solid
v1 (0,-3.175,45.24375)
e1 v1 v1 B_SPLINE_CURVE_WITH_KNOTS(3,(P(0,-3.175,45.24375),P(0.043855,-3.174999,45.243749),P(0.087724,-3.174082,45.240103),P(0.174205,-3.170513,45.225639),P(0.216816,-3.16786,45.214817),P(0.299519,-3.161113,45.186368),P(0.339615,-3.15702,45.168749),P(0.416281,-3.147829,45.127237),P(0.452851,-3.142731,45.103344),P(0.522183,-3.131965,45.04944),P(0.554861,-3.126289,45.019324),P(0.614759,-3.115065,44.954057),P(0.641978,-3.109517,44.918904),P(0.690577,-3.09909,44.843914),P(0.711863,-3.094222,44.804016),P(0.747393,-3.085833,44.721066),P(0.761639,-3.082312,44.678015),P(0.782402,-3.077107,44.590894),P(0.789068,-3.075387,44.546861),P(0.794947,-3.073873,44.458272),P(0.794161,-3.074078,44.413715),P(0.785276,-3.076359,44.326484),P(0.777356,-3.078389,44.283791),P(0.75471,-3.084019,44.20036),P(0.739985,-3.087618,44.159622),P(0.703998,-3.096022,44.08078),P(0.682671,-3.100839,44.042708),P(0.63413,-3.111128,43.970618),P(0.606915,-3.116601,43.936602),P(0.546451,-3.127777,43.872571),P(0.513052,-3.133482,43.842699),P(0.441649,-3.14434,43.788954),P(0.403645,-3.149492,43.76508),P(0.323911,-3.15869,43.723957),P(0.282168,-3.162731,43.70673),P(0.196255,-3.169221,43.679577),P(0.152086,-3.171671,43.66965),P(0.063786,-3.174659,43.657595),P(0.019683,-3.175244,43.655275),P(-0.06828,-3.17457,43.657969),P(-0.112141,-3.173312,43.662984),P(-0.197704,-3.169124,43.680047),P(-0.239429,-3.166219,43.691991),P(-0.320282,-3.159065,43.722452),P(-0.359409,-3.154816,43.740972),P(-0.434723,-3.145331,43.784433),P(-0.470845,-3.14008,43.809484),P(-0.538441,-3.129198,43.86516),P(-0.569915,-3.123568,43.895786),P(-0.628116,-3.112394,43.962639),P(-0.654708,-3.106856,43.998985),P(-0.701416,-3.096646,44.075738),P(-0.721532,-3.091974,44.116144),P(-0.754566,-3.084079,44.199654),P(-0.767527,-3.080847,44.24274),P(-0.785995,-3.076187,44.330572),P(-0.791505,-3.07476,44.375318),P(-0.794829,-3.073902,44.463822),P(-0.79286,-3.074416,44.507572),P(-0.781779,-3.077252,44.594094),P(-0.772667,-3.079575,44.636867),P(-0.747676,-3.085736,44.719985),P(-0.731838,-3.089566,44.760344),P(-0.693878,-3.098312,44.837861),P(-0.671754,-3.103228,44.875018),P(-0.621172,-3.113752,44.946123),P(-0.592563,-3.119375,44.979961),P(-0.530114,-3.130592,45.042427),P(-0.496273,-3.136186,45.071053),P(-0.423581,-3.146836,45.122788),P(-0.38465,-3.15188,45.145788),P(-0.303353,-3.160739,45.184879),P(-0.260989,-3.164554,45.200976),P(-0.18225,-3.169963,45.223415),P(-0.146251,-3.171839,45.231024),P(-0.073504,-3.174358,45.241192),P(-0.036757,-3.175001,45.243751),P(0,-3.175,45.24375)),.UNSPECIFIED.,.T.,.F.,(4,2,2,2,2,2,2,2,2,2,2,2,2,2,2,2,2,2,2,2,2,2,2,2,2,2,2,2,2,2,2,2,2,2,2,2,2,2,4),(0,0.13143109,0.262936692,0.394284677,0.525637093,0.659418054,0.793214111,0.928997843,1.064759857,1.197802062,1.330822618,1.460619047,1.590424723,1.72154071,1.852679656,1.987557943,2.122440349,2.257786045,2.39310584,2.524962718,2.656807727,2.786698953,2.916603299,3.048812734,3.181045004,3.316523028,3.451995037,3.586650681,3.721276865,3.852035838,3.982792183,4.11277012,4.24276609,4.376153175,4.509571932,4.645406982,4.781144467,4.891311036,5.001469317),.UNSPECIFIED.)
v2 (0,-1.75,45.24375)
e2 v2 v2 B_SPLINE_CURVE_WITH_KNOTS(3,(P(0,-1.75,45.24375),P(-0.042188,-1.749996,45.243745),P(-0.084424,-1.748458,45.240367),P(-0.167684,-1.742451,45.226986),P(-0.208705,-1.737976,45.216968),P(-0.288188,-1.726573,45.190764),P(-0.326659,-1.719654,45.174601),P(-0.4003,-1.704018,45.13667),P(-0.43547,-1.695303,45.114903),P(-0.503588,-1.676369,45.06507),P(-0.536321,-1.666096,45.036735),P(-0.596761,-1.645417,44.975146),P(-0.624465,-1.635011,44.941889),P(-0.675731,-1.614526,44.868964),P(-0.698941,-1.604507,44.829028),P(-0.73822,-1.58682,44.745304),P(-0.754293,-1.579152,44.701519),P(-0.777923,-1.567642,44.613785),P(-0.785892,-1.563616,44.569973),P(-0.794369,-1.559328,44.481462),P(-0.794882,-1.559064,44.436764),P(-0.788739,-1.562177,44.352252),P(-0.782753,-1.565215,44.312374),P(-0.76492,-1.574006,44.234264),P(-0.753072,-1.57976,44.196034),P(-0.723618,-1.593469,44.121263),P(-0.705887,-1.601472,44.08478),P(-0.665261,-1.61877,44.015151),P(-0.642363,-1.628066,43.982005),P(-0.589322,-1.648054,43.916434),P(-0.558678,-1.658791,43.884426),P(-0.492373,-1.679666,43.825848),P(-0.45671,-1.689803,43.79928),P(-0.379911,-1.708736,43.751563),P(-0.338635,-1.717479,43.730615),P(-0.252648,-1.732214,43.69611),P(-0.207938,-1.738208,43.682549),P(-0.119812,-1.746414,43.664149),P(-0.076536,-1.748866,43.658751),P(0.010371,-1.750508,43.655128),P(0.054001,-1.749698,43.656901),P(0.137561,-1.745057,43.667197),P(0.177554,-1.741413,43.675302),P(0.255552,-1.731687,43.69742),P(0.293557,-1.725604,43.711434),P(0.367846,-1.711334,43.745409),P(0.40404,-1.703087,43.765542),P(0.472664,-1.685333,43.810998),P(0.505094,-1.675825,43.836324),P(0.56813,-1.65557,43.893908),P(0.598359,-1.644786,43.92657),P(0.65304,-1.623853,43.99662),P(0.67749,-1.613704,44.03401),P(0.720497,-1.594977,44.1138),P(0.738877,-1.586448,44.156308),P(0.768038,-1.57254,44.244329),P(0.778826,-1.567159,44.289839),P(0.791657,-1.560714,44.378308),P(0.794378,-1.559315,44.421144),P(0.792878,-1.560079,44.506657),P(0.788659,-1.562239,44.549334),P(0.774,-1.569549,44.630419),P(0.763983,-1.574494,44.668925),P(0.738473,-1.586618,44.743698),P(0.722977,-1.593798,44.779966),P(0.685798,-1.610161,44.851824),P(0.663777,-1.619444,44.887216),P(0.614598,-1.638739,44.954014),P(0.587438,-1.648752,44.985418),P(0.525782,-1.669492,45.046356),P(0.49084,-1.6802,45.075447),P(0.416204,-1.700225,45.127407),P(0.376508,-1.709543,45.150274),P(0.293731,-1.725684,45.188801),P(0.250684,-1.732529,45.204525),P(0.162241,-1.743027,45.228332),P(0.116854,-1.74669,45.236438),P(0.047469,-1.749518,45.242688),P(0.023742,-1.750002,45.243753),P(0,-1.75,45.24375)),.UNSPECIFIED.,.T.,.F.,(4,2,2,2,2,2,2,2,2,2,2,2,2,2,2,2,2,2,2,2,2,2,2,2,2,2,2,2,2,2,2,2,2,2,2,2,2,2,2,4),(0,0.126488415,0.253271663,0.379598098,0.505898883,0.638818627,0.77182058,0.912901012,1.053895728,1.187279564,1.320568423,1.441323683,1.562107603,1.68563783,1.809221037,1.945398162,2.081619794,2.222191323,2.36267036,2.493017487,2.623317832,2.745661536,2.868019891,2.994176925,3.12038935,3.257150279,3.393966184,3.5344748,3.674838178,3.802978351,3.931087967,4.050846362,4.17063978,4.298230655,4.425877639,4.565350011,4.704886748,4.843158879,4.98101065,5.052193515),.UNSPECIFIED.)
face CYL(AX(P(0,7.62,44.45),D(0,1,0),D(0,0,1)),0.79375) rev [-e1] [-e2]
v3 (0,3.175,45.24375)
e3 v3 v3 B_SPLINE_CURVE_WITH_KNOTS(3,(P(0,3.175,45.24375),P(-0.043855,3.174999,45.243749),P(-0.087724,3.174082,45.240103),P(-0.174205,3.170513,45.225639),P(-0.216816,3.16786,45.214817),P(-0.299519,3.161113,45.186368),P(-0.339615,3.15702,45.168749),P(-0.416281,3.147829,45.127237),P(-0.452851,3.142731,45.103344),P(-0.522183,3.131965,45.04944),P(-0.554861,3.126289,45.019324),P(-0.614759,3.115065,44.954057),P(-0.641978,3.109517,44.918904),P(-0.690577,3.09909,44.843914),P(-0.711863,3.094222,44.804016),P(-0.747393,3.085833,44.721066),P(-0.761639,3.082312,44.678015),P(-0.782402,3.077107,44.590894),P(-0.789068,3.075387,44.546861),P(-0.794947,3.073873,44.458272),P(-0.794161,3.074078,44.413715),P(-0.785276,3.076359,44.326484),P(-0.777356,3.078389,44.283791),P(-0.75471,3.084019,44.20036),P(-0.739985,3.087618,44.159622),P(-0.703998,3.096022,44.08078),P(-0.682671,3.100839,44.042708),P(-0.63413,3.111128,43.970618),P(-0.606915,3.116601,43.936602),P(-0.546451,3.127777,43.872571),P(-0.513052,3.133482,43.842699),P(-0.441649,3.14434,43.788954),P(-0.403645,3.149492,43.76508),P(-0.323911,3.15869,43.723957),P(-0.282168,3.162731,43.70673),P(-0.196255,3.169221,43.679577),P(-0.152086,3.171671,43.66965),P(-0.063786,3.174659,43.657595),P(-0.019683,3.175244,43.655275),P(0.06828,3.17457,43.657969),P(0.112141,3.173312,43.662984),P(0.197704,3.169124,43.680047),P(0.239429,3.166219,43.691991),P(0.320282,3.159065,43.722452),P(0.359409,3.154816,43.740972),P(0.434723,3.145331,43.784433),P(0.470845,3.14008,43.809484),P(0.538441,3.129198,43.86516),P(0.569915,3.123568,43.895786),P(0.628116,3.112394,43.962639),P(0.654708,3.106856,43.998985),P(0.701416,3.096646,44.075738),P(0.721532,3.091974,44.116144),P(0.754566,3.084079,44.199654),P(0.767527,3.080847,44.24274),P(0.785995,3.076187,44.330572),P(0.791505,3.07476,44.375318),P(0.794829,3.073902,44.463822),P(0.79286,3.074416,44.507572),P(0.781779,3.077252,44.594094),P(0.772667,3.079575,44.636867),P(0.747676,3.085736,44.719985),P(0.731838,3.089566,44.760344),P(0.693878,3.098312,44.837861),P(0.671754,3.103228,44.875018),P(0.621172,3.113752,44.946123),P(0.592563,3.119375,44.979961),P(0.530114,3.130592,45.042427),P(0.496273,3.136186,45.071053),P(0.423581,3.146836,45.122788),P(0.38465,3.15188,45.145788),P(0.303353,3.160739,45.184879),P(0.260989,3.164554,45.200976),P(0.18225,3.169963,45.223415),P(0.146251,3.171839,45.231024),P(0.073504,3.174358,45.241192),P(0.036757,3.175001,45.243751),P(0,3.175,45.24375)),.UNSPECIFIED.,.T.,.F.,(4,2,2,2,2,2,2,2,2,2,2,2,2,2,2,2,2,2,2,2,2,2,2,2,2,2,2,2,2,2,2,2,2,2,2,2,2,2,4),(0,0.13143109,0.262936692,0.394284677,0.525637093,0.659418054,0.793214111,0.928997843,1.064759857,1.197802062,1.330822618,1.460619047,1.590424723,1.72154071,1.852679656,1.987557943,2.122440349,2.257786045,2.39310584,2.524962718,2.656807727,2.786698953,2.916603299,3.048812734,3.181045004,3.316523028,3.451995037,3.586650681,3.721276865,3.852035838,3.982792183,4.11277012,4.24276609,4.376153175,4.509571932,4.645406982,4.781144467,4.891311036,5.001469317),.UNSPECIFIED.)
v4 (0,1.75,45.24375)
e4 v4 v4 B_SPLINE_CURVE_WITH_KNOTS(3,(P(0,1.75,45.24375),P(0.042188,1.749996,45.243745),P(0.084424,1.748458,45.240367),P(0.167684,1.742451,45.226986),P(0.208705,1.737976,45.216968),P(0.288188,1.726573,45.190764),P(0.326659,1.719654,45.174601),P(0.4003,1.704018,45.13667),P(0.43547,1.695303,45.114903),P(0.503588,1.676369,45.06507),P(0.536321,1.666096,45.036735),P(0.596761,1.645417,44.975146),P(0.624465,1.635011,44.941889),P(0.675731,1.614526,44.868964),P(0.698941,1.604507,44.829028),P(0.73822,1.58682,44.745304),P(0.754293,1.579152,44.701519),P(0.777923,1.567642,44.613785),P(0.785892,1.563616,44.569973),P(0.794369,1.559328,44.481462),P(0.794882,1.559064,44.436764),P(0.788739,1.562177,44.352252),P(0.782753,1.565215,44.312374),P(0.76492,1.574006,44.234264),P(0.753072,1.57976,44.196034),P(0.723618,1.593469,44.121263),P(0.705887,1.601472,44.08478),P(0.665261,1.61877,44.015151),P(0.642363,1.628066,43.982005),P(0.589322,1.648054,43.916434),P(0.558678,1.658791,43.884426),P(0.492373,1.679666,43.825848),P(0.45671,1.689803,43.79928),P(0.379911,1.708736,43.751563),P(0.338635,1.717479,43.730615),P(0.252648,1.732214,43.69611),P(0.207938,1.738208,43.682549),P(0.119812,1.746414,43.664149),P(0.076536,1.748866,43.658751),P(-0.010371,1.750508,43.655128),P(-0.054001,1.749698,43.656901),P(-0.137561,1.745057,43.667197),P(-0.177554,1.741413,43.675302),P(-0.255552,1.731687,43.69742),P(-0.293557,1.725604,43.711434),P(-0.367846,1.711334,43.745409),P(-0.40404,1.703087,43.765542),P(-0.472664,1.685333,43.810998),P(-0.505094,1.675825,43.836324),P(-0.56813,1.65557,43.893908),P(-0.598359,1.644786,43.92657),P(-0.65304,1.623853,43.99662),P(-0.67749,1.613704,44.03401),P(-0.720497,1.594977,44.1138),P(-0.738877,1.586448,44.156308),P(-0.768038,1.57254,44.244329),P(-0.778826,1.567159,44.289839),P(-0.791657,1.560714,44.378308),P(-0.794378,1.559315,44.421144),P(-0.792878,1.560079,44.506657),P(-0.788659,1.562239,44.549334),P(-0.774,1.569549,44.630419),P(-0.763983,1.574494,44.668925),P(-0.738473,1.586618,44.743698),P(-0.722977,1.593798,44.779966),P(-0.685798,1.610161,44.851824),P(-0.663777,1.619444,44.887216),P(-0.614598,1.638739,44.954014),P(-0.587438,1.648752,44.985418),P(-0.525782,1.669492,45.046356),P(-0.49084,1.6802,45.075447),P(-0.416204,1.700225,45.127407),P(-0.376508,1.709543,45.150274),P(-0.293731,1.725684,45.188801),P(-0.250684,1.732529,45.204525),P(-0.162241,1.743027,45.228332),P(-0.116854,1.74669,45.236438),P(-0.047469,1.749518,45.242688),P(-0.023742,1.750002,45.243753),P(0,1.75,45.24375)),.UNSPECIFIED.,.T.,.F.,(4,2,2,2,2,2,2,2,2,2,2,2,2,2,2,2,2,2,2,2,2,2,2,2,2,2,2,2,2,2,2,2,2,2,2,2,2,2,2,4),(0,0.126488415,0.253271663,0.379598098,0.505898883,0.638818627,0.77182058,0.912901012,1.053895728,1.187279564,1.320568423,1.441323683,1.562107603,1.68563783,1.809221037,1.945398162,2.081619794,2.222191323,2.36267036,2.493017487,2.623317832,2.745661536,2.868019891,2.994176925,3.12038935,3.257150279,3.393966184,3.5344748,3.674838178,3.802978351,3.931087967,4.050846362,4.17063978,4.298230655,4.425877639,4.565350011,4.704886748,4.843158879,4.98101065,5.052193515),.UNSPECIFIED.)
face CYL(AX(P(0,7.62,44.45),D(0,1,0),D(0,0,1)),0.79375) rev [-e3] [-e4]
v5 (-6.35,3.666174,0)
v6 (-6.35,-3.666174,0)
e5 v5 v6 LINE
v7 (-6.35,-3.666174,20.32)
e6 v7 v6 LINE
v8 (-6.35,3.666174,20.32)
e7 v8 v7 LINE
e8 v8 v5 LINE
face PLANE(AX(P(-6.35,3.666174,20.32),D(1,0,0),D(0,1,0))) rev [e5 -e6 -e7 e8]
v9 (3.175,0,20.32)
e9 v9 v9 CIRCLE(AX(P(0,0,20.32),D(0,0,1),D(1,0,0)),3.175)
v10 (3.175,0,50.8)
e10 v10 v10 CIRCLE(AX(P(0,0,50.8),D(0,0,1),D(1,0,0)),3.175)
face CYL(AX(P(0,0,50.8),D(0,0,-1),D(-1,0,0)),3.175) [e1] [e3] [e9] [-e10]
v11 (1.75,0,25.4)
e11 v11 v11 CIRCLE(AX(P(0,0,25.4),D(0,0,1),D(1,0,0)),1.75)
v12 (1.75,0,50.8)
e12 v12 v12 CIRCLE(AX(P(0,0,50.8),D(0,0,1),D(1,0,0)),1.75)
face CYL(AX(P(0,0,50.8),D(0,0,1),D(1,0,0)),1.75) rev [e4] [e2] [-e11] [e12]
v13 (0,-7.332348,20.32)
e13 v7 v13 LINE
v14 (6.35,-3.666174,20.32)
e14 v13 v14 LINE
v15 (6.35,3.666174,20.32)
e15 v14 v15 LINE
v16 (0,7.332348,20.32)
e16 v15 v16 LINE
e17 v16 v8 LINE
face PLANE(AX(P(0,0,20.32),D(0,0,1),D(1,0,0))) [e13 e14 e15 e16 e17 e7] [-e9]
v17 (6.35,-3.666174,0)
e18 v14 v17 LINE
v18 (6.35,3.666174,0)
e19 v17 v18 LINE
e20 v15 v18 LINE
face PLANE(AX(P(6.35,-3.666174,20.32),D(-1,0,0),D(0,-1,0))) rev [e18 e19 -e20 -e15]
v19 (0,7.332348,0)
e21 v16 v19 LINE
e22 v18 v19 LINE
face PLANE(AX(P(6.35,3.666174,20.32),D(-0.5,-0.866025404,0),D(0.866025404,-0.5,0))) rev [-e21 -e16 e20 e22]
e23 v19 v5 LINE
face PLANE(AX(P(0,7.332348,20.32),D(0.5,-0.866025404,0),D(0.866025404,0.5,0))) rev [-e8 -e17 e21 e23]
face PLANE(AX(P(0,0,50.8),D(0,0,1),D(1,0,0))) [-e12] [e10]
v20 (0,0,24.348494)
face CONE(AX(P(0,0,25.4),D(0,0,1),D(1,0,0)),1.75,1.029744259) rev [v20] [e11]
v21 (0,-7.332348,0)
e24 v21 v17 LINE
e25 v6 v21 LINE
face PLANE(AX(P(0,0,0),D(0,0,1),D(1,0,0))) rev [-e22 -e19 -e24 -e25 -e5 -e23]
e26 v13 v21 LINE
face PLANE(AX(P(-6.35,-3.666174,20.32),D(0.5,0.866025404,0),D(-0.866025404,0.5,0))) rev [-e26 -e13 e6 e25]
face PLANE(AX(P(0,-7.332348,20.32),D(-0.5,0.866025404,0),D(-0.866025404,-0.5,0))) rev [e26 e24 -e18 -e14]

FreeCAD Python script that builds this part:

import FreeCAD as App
import Part
import Sketcher
from FreeCAD import Vector
Q = App.Units.Quantity

doc = App.newDocument("Part")
body = doc.addObject("PartDesign::Body", "Body")

# Sketch on XY plane
sketch1 = body.newObject("Sketcher::SketchObject", "Sketch")
sketch1.AttachmentSupport = (doc.getObject("XY_Plane"), [""])
sketch1.MapMode = "FlatFace"
sketch1.addGeometry([
    Part.LineSegment(Vector(0, 7, 0), Vector(-6, 4, 0)),  # 0
    Part.LineSegment(Vector(-6, 4, 0), Vector(-6, -4, 0)),  # 1
    Part.LineSegment(Vector(-6, -4, 0), Vector(0, -7, 0)),  # 2
    Part.LineSegment(Vector(0, -7, 0), Vector(6, -4, 0)),  # 3
    Part.LineSegment(Vector(6, -4, 0), Vector(6, 4, 0)),  # 4
    Part.LineSegment(Vector(6, 4, 0), Vector(0, 7, 0)),  # 5
], False)
sketch1.addConstraint([
    Sketcher.Constraint("Coincident", 0, 2, 1, 1),
    Sketcher.Constraint("Coincident", 1, 2, 2, 1),
    Sketcher.Constraint("Coincident", 2, 2, 3, 1),
    Sketcher.Constraint("Coincident", 3, 2, 4, 1),
    Sketcher.Constraint("Coincident", 4, 2, 5, 1),
    Sketcher.Constraint("Coincident", 5, 2, 0, 1),
    Sketcher.Constraint("Vertical", 1),
    Sketcher.Constraint("Vertical", 4),
    Sketcher.Constraint("Symmetric", 0, 2, 3, 2, -1, 1),
    Sketcher.Constraint("Symmetric", 2, 2, 5, 2, -1, 1),
    Sketcher.Constraint("PointOnObject", 2, 2, -2),
    Sketcher.Constraint("Parallel", 2, 5),
    Sketcher.Constraint("Horizontal", 1, 2, 3, 2),
    Sketcher.Constraint("Angle", 0, Q("-150 deg")),
    Sketcher.Constraint("DistanceX", 1, 2, 3, 2, Q("0.5 in")),
    Sketcher.Constraint("DistanceY", 1, 2, 1, 1, 7.332348),
])
pad1 = body.newObject("PartDesign::Pad", "Pad")
pad1.Profile = sketch1
pad1.Length = Q("0.8 in")

# Sketch on XY plane
sketch2 = body.newObject("Sketcher::SketchObject", "Sketch001")
sketch2.AttachmentSupport = (doc.getObject("XY_Plane"), [""])
sketch2.MapMode = "FlatFace"
sketch2.AttachmentOffset = App.Placement(Vector(0, 0, 0.8 * 25.4), App.Rotation())
sketch2.addGeometry(Part.Circle(Vector(0, 0, 0), Vector(0, 0, 1), 3.2), False)
sketch2.addConstraint([
    Sketcher.Constraint("Coincident", 0, 3, -1, 1),
    Sketcher.Constraint("Diameter", 0, Q("0.25 in")),
])
pad2 = body.newObject("PartDesign::Pad", "Pad001")
pad2.Profile = sketch2
pad2.Length = Q("1.2 in")

# Sketch on XY plane
sketch3 = body.newObject("Sketcher::SketchObject", "Sketch002")
sketch3.AttachmentSupport = (doc.getObject("XY_Plane"), [""])
sketch3.MapMode = "FlatFace"
sketch3.AttachmentOffset = App.Placement(Vector(0, 0, 2 * 25.4), App.Rotation())
sketch3.addGeometry(Part.Circle(Vector(0, 0, 0), Vector(0, 0, 1), 1.8), False)
sketch3.addConstraint([
    Sketcher.Constraint("Coincident", 0, 3, -1, 1),
    Sketcher.Constraint("Diameter", 0, 3.5),
])
doc.recompute()
hole = body.newObject("PartDesign::Hole", "Hole")
hole.Profile = sketch3
hole.ThreadType = "None"
hole.Diameter = 3.5
hole.DepthType = "Dimension"
hole.Depth = Q("1 in")
hole.DrillPoint = "Angled"
hole.DrillPointAngle = 118

# Sketch on XZ plane
sketch4 = body.newObject("Sketcher::SketchObject", "Sketch003")
sketch4.AttachmentSupport = (doc.getObject("XZ_Plane"), [""])
sketch4.MapMode = "FlatFace"
sketch4.AttachmentOffset = App.Placement(Vector(0, 0, -0.3 * 25.4), App.Rotation())
sketch4.addGeometry(Part.Circle(Vector(0, 44.5, 0), Vector(0, 0, 1), 0.8), False)
sketch4.addConstraint([
    Sketcher.Constraint("PointOnObject", 0, 3, -2),
    Sketcher.Constraint("Diameter", 0, Q("0.0625 in")),
    Sketcher.Constraint("DistanceY", -1, 1, 0, 3, Q("1.75 in")),
])
doc.recompute()
hole2 = body.newObject("PartDesign::Hole", "Hole001")
hole2.Profile = sketch4
hole2.ThreadType = "None"
hole2.Diameter = Q("0.0625 in")
hole2.DepthType = "ThroughAll"
hole2.Reversed = True

doc.recompute()
